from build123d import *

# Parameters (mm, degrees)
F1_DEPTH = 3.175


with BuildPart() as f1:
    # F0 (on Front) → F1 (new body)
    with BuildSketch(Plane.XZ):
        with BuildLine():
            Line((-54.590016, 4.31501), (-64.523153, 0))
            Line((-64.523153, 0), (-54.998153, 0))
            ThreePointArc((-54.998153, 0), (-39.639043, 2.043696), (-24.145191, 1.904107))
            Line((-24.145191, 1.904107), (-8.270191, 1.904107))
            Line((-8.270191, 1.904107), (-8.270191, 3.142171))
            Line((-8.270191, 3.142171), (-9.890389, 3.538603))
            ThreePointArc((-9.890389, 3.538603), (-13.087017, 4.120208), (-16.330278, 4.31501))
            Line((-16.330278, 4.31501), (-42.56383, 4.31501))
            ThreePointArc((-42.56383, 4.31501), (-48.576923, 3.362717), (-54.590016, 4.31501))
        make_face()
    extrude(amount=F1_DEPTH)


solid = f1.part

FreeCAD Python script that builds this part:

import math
import FreeCAD as App
import Part
import Sketcher

V = App.Vector
Q = App.Units.Quantity

doc = App.newDocument("Part")
body = doc.addObject("PartDesign::Body", "Body")

# Sketch on XZ plane
sketch1 = body.newObject("Sketcher::SketchObject", "Sketch")
sketch1.AttachmentSupport = (doc.getObject("XZ_Plane"), [""])
sketch1.MapMode = "FlatFace"
sketch1.addGeometry(Part.LineSegment(V(-54.6, 4.3, 0), V(-64.5, 0, 0)), False)
sketch1.addGeometry(Part.LineSegment(V(-64.5, 0, 0), V(-55, 0, 0)), False)
sketch1.addGeometry(Part.ArcOfCircle(Part.Circle(V(-32.9, -107.5, 0), V(0, 0, 1), 109.8), math.radians(85.44), math.radians(101.63)), False)
sketch1.addGeometry(Part.LineSegment(V(-24.1, 1.9, 0), V(-8.3, 1.9, 0)), False)
sketch1.addGeometry(Part.LineSegment(V(-8.3, 1.9, 0), V(-8.3, 3.1, 0)), False)
sketch1.addGeometry(Part.LineSegment(V(-8.3, 3.1, 0), V(-9.9, 3.5, 0)), False)
sketch1.addGeometry(Part.ArcOfCircle(Part.Circle(V(-16.3, -22.8, 0), V(0, 0, 1), 27.1), math.radians(76.25), math.radians(90)), False)
sketch1.addGeometry(Part.LineSegment(V(-16.3, 4.3, 0), V(-42.6, 4.3, 0)), False)
sketch1.addGeometry(Part.ArcOfCircle(Part.Circle(V(-48.6, 22.8, 0), V(0, 0, 1), 19.5), math.radians(-108), math.radians(-72)), False)
sketch1.addConstraint(Sketcher.Constraint("Coincident", 0, 2, 1, 1))
sketch1.addConstraint(Sketcher.Constraint("Coincident", 1, 2, 2, 2))
sketch1.addConstraint(Sketcher.Constraint("Coincident", 2, 1, 3, 1))
sketch1.addConstraint(Sketcher.Constraint("Coincident", 3, 2, 4, 1))
sketch1.addConstraint(Sketcher.Constraint("Coincident", 4, 2, 5, 1))
sketch1.addConstraint(Sketcher.Constraint("Tangent", 5, 2, 6, 1))
sketch1.addConstraint(Sketcher.Constraint("Tangent", 6, 2, 7, 1))
sketch1.addConstraint(Sketcher.Constraint("Coincident", 7, 2, 8, 2))
sketch1.addConstraint(Sketcher.Constraint("Coincident", 8, 1, 0, 1))
sketch1.addConstraint(Sketcher.Constraint("Horizontal", 1))
sketch1.addConstraint(Sketcher.Constraint("Horizontal", 3))
sketch1.addConstraint(Sketcher.Constraint("Vertical", 4))
sketch1.addConstraint(Sketcher.Constraint("Horizontal", 7))
sketch1.addConstraint(Sketcher.Constraint("PointOnObject", 0, 2, -1))
sketch1.addConstraint(Sketcher.Constraint("Horizontal", 7, 2, 8, 1))
sketch1.addConstraint(Sketcher.Constraint("DistanceX", 1, 1, 1, 2, Q("0.375 in")))
sketch1.addConstraint(Sketcher.Constraint("DistanceX", 3, 1, 3, 2, Q("0.625 in")))
sketch1.addConstraint(Sketcher.Constraint("Radius", 2, 109.753442))
sketch1.addConstraint(Sketcher.Constraint("Radius", 6, 27.095962))
sketch1.addConstraint(Sketcher.Constraint("Radius", 8, 19.460476))
sketch1.addConstraint(Sketcher.Constraint("DistanceX", 5, 2, 4, 2, 1.620198))
sketch1.addConstraint(Sketcher.Constraint("Distance", 0, 10.82989))
sketch1.addConstraint(Sketcher.Constraint("DistanceX", 7, 2, 7, 1, 26.233552))
sketch1.addConstraint(Sketcher.Constraint("DistanceY", 4, 1, 4, 2, 1.238064))
sketch1.addConstraint(Sketcher.Constraint("DistanceX", 6, 3, -1, 1, 16.330279))
sketch1.addConstraint(Sketcher.Constraint("DistanceY", 6, 3, -1, 1, 22.780952))
sketch1.addConstraint(Sketcher.Constraint("DistanceX", 2, 1, -1, 1, 24.145191))
sketch1.addConstraint(Sketcher.Constraint("DistanceX", 8, 3, 2, 3, 15.698509))
pad1 = body.newObject("PartDesign::Pad", "Pad")
pad1.Profile = sketch1
pad1.Length = Q("0.125 in")

doc.recompute()
